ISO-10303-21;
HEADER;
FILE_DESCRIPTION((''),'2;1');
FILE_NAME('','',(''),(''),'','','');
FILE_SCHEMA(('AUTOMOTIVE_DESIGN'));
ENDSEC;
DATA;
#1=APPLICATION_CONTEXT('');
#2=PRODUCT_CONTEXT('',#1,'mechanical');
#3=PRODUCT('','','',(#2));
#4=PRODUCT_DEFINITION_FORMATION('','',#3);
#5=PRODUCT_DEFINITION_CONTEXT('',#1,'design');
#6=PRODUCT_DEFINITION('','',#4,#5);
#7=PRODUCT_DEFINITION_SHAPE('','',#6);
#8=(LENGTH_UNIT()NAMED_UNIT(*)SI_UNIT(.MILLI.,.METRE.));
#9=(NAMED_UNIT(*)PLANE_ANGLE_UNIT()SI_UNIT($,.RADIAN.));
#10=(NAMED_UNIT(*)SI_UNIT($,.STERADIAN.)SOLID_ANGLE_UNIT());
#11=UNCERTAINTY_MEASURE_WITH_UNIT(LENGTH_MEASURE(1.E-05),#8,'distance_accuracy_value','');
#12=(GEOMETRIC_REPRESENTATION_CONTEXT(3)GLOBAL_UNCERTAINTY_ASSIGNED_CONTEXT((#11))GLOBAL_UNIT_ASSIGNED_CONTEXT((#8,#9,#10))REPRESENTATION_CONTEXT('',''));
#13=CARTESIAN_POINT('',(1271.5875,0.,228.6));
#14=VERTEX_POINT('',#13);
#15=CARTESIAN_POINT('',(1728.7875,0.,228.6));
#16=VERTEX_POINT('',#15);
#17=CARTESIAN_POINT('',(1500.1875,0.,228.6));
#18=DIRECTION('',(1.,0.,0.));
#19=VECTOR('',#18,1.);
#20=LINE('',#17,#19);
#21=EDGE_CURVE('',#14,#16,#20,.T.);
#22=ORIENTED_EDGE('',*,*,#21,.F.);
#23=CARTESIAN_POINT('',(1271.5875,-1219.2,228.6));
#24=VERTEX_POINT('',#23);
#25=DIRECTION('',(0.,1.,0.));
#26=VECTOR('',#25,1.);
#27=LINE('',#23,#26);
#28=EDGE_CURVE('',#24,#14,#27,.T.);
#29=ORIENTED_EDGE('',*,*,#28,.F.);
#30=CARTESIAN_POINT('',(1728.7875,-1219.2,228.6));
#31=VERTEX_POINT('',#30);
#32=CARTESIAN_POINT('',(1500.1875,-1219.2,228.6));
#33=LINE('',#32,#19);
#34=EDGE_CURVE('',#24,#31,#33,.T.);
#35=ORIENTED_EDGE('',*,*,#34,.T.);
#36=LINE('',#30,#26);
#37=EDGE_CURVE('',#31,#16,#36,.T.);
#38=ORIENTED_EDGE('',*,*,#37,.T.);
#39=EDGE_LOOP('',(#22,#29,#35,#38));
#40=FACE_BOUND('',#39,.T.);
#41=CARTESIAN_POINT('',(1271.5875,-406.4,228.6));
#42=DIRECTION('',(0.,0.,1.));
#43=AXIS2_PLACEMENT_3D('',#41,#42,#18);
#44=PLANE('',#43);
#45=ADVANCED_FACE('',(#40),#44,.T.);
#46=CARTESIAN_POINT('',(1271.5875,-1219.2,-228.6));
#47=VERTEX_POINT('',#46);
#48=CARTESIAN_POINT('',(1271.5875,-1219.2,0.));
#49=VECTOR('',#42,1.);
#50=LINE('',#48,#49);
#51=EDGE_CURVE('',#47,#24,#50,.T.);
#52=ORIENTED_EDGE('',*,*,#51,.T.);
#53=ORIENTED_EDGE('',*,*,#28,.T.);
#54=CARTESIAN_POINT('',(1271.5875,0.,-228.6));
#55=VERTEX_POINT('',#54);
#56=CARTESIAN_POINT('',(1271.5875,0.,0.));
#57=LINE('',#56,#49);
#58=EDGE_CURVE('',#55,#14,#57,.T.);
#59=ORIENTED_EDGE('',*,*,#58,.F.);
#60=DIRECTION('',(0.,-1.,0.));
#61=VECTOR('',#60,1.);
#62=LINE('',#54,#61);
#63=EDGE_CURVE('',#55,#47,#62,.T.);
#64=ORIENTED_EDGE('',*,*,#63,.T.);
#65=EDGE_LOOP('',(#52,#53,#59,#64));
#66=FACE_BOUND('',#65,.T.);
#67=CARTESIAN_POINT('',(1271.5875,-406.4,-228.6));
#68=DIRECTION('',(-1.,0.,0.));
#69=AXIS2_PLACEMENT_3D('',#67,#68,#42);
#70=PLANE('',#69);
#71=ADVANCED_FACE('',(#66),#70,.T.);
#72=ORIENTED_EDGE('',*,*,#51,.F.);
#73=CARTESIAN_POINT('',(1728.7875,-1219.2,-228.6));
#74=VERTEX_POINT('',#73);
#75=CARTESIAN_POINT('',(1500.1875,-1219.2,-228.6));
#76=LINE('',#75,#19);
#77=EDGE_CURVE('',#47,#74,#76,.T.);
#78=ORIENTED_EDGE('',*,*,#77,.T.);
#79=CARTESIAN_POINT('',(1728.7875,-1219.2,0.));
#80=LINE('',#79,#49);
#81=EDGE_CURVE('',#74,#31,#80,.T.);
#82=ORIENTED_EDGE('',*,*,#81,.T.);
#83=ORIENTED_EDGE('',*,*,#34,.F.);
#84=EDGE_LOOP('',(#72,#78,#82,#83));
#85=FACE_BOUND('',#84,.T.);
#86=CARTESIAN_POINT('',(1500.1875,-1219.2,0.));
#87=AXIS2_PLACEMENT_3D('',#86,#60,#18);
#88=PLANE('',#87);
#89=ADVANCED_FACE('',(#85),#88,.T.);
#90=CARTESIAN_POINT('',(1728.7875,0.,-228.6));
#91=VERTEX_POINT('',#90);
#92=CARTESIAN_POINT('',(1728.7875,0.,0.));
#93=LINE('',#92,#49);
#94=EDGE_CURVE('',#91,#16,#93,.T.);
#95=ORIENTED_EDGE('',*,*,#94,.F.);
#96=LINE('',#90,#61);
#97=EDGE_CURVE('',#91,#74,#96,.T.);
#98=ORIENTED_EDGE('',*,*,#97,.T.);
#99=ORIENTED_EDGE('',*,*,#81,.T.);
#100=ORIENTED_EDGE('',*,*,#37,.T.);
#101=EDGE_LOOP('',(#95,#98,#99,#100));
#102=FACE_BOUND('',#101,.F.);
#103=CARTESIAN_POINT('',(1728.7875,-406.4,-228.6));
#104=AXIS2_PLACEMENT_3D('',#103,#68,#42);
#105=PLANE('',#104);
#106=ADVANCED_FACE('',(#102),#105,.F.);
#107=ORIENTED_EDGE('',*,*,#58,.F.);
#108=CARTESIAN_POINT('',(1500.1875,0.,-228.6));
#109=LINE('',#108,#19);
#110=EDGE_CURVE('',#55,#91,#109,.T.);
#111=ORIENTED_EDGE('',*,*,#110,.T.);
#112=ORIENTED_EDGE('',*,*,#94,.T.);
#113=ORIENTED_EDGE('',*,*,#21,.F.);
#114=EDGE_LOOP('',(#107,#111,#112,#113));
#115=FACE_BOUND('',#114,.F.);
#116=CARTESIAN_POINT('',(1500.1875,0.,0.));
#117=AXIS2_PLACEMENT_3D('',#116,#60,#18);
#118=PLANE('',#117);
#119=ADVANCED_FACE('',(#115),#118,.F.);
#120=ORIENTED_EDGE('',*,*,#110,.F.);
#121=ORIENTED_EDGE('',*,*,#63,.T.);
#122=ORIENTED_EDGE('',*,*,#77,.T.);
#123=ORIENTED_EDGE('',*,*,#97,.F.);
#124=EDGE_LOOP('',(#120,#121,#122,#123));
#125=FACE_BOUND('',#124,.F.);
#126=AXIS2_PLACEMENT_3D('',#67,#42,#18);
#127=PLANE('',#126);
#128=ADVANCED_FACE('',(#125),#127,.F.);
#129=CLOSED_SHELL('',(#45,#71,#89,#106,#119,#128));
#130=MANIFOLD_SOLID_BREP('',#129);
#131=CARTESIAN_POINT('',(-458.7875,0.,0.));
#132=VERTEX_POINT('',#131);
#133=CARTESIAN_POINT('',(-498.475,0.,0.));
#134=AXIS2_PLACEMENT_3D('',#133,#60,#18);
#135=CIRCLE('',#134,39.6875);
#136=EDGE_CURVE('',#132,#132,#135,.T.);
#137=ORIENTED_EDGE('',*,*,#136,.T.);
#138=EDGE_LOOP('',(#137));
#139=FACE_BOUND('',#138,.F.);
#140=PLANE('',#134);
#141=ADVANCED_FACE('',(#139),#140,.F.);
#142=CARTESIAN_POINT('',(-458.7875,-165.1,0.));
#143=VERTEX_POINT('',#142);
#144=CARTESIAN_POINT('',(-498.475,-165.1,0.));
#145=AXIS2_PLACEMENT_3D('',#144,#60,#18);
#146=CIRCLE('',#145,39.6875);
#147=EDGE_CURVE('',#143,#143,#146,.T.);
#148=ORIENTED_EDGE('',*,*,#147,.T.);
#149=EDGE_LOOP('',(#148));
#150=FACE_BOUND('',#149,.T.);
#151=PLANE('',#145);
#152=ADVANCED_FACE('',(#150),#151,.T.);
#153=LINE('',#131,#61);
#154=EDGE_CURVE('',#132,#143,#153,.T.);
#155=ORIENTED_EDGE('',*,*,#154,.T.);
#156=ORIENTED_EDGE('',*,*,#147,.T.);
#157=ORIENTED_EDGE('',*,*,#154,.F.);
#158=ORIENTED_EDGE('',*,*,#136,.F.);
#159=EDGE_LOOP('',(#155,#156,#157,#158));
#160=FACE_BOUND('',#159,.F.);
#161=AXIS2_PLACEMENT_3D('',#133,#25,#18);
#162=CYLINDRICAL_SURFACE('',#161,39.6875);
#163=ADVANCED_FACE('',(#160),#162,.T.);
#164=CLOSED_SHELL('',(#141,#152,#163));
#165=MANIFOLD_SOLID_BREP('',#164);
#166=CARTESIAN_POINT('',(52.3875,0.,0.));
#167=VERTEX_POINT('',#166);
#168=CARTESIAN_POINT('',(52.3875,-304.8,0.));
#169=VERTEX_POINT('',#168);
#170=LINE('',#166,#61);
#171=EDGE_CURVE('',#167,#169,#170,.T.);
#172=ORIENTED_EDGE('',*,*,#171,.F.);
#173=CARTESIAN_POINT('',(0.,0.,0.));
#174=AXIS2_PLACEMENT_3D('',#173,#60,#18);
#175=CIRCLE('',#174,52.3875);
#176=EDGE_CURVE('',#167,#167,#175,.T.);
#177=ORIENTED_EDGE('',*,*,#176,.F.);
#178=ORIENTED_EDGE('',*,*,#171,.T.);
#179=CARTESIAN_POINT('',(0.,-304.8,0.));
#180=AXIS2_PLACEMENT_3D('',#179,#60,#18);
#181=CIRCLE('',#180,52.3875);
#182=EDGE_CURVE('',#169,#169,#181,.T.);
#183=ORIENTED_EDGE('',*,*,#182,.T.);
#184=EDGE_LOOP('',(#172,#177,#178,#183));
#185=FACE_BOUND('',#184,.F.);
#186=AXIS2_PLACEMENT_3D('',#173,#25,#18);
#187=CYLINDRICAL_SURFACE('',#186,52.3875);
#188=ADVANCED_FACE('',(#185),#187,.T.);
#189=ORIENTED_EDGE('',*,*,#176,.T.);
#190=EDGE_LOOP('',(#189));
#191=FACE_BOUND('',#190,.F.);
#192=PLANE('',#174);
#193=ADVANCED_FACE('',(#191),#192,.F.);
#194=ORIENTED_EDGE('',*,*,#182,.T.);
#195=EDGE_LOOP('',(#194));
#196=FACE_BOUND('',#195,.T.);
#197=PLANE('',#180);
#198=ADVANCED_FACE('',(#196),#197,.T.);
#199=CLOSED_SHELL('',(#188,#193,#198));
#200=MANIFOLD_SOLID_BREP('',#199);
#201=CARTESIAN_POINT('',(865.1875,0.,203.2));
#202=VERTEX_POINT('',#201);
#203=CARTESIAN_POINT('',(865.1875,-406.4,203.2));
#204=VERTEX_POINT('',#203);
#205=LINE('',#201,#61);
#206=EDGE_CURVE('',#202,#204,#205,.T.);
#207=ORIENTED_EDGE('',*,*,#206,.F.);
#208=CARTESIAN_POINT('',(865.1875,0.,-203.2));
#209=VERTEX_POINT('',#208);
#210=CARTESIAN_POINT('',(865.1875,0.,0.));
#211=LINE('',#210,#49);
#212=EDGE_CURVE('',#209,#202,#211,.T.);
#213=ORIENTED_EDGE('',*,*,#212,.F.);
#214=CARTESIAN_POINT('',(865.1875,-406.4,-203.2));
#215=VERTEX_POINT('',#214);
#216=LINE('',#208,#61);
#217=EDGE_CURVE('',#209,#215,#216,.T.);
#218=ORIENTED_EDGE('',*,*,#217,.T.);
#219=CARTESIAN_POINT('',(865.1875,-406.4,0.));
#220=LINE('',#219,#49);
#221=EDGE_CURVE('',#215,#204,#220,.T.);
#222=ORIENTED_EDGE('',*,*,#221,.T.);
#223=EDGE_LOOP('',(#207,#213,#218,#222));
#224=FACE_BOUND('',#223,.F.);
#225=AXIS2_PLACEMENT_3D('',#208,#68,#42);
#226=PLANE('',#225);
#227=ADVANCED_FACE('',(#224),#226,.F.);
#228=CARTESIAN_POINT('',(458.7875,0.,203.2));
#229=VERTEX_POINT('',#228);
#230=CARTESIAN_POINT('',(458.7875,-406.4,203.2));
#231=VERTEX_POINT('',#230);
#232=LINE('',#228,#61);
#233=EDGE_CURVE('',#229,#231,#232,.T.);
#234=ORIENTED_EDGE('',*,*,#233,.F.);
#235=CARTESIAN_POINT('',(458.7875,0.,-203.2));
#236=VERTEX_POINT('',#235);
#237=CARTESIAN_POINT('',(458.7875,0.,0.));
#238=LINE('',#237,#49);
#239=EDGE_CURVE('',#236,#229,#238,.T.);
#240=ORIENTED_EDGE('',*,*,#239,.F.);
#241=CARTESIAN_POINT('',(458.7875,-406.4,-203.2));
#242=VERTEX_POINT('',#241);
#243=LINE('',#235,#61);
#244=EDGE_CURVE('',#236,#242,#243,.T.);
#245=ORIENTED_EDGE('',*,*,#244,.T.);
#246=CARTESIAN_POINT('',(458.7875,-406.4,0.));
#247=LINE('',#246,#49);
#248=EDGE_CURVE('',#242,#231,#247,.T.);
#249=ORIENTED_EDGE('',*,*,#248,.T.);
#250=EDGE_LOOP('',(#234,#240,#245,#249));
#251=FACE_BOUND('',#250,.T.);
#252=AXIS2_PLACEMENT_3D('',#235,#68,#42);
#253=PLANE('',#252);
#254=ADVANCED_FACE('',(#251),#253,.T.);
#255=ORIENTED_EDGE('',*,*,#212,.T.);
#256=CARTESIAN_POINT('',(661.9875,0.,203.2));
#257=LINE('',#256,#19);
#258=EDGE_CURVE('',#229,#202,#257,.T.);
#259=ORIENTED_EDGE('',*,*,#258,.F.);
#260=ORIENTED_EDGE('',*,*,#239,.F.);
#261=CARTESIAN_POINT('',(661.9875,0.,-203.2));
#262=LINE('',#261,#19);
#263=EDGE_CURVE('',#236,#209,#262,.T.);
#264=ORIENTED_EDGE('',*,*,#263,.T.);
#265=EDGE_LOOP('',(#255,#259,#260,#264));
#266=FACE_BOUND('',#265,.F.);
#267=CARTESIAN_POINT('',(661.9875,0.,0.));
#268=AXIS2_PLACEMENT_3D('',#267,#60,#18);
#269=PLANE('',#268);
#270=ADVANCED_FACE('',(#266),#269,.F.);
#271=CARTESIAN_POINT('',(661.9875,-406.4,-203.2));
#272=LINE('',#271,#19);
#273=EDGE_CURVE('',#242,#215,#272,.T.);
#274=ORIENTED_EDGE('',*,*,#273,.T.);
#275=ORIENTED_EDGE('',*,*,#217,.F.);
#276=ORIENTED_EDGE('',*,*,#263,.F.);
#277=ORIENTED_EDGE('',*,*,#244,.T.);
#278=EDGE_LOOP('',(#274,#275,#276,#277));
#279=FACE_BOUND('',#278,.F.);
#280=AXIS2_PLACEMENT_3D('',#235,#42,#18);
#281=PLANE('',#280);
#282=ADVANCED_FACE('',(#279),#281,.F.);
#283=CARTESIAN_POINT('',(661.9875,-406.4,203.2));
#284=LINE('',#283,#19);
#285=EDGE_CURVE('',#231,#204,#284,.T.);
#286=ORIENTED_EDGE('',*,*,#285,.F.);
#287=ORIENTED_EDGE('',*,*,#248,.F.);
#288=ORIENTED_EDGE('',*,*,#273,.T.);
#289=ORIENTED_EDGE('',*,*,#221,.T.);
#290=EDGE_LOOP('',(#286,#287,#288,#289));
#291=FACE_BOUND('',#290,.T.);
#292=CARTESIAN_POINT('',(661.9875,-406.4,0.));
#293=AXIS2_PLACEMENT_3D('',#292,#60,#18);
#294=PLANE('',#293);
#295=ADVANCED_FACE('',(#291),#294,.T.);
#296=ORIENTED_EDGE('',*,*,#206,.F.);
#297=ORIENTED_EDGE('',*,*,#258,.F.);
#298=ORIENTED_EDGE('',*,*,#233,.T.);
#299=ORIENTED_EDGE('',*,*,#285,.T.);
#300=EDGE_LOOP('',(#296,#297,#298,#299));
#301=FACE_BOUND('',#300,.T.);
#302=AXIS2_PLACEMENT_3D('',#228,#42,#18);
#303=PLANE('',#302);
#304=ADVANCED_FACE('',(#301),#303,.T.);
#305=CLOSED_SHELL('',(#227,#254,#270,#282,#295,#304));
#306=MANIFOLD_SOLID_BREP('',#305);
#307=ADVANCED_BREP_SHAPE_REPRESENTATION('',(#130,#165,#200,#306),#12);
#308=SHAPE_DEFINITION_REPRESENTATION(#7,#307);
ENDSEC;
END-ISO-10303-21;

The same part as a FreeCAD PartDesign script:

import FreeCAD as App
import Part
import Sketcher
Q = App.Units.Quantity

doc = App.newDocument("Part")
body = doc.addObject("PartDesign::Body", "Body")

# Sketch on XZ plane
sketch1 = doc.addObject("Sketcher::SketchObject", "Sketch")
body.addObject(sketch1)
sketch1.AttachmentSupport = (doc.XZ_Plane, [""])
sketch1.MapMode = "FlatFace"
sketch1.addGeometry(Part.Circle(App.Vector(0, 0, 0), App.Vector(0, 0, 1), 52), False)
sketch1.addConstraint(Sketcher.Constraint("Coincident", 0, 3, -1, 1))
sketch1.addConstraint(Sketcher.Constraint("Diameter", 0, Q("4.125 in")))
pad1 = doc.addObject("PartDesign::Pad", "Pad")
body.addObject(pad1)
pad1.Profile = sketch1
pad1.Length = Q("12 in")
body2 = doc.addObject("PartDesign::Body", "Body001")

# Sketch on XZ plane
sketch2 = doc.addObject("Sketcher::SketchObject", "Sketch001")
body2.addObject(sketch2)
sketch2.AttachmentSupport = (doc.getObject("XZ_Plane001"), [""])
sketch2.MapMode = "FlatFace"
sketch2.addGeometry(Part.Circle(App.Vector(-498, 0, 0), App.Vector(0, 0, 1), 40), False)
sketch2.addConstraint(Sketcher.Constraint("PointOnObject", 0, 3, -1))
sketch2.addConstraint(Sketcher.Constraint("Diameter", 0, Q("3.125 in")))
sketch2.addConstraint(Sketcher.Constraint("DistanceX", 0, 3, -1, 1, Q("19.625 in")))
pad2 = doc.addObject("PartDesign::Pad", "Pad001")
body2.addObject(pad2)
pad2.Profile = sketch2
pad2.Length = Q("6.5 in")
body3 = doc.addObject("PartDesign::Body", "Body002")
body3.AllowCompound = True

# Sketch on XZ plane
sketch3 = doc.addObject("Sketcher::SketchObject", "Sketch002")
body3.addObject(sketch3)
sketch3.AttachmentSupport = (doc.getObject("XZ_Plane002"), [""])
sketch3.MapMode = "FlatFace"
sketch3.addGeometry(Part.LineSegment(App.Vector(459, 203, 0), App.Vector(459, -203, 0)), False)
sketch3.addGeometry(Part.LineSegment(App.Vector(459, -203, 0), App.Vector(865, -203, 0)), False)
sketch3.addGeometry(Part.LineSegment(App.Vector(865, -203, 0), App.Vector(865, 203, 0)), False)
sketch3.addGeometry(Part.LineSegment(App.Vector(865, 203, 0), App.Vector(459, 203, 0)), False)
sketch3.addGeometry(Part.LineSegment(App.Vector(1272, 229, 0), App.Vector(1272, -229, 0)), False)
sketch3.addGeometry(Part.LineSegment(App.Vector(1272, -229, 0), App.Vector(1729, -229, 0)), False)
sketch3.addGeometry(Part.LineSegment(App.Vector(1729, -229, 0), App.Vector(1729, 229, 0)), False)
sketch3.addGeometry(Part.LineSegment(App.Vector(1729, 229, 0), App.Vector(1272, 229, 0)), False)
sketch3.addConstraint(Sketcher.Constraint("Coincident", 0, 2, 1, 1))
sketch3.addConstraint(Sketcher.Constraint("Coincident", 1, 2, 2, 1))
sketch3.addConstraint(Sketcher.Constraint("Coincident", 2, 2, 3, 1))
sketch3.addConstraint(Sketcher.Constraint("Coincident", 3, 2, 0, 1))
sketch3.addConstraint(Sketcher.Constraint("Coincident", 4, 2, 5, 1))
sketch3.addConstraint(Sketcher.Constraint("Coincident", 5, 2, 6, 1))
sketch3.addConstraint(Sketcher.Constraint("Coincident", 6, 2, 7, 1))
sketch3.addConstraint(Sketcher.Constraint("Coincident", 7, 2, 4, 1))
sketch3.addConstraint(Sketcher.Constraint("Vertical", 0))
sketch3.addConstraint(Sketcher.Constraint("Horizontal", 1))
sketch3.addConstraint(Sketcher.Constraint("Vertical", 2))
sketch3.addConstraint(Sketcher.Constraint("Horizontal", 3))
sketch3.addConstraint(Sketcher.Constraint("Vertical", 4))
sketch3.addConstraint(Sketcher.Constraint("Horizontal", 5))
sketch3.addConstraint(Sketcher.Constraint("Vertical", 6))
sketch3.addConstraint(Sketcher.Constraint("Horizontal", 7))
sketch3.addConstraint(Sketcher.Constraint("Equal", 3, 0))
sketch3.addConstraint(Sketcher.Constraint("Equal", 7, 4))
sketch3.addConstraint(Sketcher.Constraint("DistanceX", 1, 1, 1, 2, Q("16 in")))
sketch3.addConstraint(Sketcher.Constraint("DistanceX", 5, 1, 5, 2, Q("18 in")))
sketch3.addConstraint(Sketcher.Constraint("DistanceY", 0, 2, -1, 1, Q("8 in")))
sketch3.addConstraint(Sketcher.Constraint("DistanceY", 4, 2, -1, 1, Q("9 in")))
sketch3.addConstraint(Sketcher.Constraint("DistanceX", 1, 2, 4, 2, Q("16 in")))
sketch3.addConstraint(Sketcher.Constraint("DistanceX", -1, 1, 0, 2, Q("18.0625 in")))
pad3 = doc.addObject("PartDesign::Pad", "Pad002")
body3.addObject(pad3)
pad3.Profile = sketch3
pad3.Length = Q("16 in")

# Sketch on XZ plane
sketch4 = doc.addObject("Sketcher::SketchObject", "Sketch003")
body3.addObject(sketch4)
sketch4.AttachmentSupport = (doc.getObject("XZ_Plane002"), [""])
sketch4.MapMode = "FlatFace"
sketch4.AttachmentOffset = App.Placement(App.Vector(0, 0, 16 * 25.4), App.Rotation())
sketch4.addGeometry(Part.LineSegment(App.Vector(1272, 229, 0), App.Vector(1272, -229, 0)), False)
sketch4.addGeometry(Part.LineSegment(App.Vector(1272, -229, 0), App.Vector(1729, -229, 0)), False)
sketch4.addGeometry(Part.LineSegment(App.Vector(1729, -229, 0), App.Vector(1729, 229, 0)), False)
sketch4.addGeometry(Part.LineSegment(App.Vector(1729, 229, 0), App.Vector(1272, 229, 0)), False)
sketch4.addConstraint(Sketcher.Constraint("Coincident", 0, 2, 1, 1))
sketch4.addConstraint(Sketcher.Constraint("Coincident", 1, 2, 2, 1))
sketch4.addConstraint(Sketcher.Constraint("Coincident", 2, 2, 3, 1))
sketch4.addConstraint(Sketcher.Constraint("Coincident", 3, 2, 0, 1))
sketch4.addConstraint(Sketcher.Constraint("Vertical", 0))
sketch4.addConstraint(Sketcher.Constraint("Horizontal", 1))
sketch4.addConstraint(Sketcher.Constraint("Vertical", 2))
sketch4.addConstraint(Sketcher.Constraint("Horizontal", 3))
sketch4.addConstraint(Sketcher.Constraint("Equal", 3, 0))
sketch4.addConstraint(Sketcher.Constraint("DistanceX", 1, 1, 1, 2, Q("18 in")))
sketch4.addConstraint(Sketcher.Constraint("DistanceY", 0, 2, -1, 1, Q("9 in")))
sketch4.addConstraint(Sketcher.Constraint("DistanceX", -1, 1, 0, 2, Q("50.0625 in")))
pad4 = doc.addObject("PartDesign::Pad", "Pad003")
body3.addObject(pad4)
pad4.Profile = sketch4
pad4.Length = Q("32 in")

doc.recompute()
